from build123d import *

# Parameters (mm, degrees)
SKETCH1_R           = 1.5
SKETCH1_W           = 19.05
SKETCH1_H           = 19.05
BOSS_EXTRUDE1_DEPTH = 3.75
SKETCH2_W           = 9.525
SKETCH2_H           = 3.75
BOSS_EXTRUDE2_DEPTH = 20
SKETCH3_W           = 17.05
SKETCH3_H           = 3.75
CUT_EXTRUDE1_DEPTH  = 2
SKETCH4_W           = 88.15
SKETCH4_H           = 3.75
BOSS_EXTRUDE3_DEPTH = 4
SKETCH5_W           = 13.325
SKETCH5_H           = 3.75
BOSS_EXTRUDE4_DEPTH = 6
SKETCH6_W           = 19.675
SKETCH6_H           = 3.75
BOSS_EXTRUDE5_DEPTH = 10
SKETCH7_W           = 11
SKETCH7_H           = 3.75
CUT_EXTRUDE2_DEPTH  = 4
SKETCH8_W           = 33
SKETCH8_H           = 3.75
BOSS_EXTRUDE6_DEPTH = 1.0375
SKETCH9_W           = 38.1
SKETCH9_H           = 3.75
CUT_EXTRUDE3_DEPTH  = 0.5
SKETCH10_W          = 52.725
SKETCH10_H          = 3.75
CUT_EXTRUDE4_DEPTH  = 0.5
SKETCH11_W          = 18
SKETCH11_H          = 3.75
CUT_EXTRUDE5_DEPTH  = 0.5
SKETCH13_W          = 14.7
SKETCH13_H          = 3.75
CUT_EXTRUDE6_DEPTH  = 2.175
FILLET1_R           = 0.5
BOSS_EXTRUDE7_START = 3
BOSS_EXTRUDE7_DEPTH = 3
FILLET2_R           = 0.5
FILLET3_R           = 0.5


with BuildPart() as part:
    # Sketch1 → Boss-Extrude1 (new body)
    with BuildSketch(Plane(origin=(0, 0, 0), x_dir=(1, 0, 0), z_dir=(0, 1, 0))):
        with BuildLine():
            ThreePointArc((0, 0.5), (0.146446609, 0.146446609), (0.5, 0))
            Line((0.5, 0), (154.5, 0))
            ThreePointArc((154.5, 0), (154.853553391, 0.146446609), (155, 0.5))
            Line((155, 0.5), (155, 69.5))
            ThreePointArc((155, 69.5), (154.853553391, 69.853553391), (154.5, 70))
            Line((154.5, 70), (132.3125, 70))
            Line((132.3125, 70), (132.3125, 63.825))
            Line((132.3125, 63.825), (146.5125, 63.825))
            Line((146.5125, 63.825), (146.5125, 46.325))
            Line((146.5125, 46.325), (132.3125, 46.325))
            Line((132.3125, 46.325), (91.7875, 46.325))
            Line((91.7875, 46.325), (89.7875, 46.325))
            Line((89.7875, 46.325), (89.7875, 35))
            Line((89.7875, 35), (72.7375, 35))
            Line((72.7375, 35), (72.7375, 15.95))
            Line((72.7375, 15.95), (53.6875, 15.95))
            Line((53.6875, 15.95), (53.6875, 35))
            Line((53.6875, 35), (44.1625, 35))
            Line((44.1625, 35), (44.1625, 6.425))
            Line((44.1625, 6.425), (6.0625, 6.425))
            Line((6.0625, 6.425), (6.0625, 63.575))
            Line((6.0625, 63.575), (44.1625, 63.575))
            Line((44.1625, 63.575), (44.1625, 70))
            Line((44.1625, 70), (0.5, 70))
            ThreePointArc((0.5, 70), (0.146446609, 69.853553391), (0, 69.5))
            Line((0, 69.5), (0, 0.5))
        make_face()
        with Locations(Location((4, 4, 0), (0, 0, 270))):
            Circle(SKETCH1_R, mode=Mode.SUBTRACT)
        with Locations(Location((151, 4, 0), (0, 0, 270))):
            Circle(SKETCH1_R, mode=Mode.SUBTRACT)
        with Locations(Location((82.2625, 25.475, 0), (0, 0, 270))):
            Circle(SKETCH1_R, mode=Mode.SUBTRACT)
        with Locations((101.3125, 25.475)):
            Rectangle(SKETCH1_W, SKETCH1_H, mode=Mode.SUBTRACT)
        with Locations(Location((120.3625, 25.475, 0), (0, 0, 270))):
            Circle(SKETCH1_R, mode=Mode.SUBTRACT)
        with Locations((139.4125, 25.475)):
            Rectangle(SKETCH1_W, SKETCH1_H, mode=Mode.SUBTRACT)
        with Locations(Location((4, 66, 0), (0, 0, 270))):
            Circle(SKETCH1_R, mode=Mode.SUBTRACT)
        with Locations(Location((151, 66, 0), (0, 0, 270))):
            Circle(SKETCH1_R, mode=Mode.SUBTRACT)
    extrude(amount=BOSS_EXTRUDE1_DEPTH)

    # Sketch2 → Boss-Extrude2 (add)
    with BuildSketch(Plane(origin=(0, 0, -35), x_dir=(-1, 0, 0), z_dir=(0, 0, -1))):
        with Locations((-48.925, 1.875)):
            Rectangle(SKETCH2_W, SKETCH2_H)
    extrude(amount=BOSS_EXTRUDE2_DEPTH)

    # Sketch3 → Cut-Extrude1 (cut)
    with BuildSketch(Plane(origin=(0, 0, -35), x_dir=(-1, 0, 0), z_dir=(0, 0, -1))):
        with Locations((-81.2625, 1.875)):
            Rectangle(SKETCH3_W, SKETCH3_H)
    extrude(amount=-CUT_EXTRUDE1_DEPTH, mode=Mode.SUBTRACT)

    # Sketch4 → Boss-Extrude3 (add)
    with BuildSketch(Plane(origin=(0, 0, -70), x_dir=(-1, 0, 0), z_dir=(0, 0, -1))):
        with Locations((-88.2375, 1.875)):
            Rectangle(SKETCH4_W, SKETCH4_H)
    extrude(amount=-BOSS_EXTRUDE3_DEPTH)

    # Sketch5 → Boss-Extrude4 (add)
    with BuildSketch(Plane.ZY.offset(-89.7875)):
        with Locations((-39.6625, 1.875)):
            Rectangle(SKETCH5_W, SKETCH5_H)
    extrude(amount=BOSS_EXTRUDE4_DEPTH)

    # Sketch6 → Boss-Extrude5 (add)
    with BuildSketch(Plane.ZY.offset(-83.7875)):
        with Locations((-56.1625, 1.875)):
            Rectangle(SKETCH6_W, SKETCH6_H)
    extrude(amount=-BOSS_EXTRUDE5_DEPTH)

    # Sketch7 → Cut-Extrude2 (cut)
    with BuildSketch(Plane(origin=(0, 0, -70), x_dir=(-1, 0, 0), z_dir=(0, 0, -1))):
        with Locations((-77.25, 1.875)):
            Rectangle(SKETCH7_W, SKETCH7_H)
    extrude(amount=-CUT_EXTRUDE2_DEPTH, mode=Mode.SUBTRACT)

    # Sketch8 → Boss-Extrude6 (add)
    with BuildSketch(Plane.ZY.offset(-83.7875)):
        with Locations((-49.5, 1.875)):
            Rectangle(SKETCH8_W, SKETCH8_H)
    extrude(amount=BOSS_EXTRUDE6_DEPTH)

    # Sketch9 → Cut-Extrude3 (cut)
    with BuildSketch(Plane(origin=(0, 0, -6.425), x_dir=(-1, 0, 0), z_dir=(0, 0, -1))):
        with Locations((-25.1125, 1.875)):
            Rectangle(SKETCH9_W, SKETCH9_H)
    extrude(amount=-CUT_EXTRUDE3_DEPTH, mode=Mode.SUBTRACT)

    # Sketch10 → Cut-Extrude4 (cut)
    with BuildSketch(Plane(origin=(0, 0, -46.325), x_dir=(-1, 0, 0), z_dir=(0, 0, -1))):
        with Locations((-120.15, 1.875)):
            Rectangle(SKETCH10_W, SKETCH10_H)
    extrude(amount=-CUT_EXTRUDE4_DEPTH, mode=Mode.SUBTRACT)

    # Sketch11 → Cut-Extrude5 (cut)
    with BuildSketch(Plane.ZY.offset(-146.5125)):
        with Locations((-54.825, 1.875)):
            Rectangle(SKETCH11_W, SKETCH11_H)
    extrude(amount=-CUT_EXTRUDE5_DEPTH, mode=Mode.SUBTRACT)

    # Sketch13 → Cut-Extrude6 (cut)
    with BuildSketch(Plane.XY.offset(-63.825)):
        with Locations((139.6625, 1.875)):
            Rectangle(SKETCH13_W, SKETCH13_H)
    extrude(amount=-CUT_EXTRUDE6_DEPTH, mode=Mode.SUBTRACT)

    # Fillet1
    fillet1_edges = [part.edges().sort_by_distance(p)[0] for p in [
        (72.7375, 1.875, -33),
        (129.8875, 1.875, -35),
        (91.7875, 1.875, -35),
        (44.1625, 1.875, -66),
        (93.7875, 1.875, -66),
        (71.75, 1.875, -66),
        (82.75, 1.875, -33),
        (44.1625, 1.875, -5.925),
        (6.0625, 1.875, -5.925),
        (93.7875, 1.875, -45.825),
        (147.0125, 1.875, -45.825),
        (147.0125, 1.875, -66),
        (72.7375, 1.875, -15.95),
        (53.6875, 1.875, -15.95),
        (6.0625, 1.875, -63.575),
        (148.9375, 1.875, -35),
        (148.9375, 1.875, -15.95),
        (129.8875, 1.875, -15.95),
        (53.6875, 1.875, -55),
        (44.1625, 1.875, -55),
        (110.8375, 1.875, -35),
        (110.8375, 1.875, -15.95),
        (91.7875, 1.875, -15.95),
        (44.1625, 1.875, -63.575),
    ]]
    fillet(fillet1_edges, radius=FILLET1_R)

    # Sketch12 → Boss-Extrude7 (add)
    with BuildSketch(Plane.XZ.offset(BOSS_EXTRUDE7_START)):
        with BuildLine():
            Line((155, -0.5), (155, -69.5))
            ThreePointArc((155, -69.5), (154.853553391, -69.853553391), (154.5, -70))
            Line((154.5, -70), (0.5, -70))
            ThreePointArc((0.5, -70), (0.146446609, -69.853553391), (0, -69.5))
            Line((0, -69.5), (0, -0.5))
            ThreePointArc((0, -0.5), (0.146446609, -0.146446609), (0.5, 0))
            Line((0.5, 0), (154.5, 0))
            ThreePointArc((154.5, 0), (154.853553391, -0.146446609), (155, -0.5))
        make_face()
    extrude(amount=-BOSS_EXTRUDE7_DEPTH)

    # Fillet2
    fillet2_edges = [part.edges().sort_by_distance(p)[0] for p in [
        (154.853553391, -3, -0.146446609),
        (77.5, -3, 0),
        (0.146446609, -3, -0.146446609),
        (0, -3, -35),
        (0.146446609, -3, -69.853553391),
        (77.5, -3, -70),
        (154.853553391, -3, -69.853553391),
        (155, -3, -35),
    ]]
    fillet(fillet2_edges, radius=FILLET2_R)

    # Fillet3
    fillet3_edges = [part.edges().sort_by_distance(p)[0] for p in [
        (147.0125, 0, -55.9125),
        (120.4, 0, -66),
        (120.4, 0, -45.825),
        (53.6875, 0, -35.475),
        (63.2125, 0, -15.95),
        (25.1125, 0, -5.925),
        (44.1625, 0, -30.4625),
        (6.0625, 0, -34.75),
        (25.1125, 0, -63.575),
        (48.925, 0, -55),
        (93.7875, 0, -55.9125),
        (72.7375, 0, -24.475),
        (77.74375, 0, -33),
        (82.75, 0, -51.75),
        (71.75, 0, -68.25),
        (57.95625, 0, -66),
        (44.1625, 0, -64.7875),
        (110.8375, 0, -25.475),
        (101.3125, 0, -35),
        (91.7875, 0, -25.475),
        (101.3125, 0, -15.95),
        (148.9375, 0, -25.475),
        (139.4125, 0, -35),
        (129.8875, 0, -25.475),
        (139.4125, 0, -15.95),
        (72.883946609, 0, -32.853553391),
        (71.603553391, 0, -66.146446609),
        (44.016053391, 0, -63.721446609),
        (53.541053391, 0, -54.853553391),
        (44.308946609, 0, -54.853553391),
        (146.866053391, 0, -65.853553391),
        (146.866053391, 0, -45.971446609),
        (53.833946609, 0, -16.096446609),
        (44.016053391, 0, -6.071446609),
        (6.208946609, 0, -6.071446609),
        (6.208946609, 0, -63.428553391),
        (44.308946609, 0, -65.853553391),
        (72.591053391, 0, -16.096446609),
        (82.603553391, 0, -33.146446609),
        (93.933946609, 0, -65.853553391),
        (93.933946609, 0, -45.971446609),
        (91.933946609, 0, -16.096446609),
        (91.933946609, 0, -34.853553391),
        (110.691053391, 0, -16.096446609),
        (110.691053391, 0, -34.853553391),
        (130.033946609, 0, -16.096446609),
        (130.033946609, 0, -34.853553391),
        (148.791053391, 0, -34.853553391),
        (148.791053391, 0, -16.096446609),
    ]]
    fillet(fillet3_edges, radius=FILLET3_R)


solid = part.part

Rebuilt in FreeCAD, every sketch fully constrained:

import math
import FreeCAD as App
import Part
import Sketcher
from FreeCAD import Vector
Q = App.Units.Quantity


def edges_at(feature, points):
    """Names of the edges that pass closest to the given points."""
    edges = feature.Shape.Edges
    near = lambda p: min(range(len(edges)), key=lambda i: edges[i].distToShape(Part.Vertex(*p))[0])
    return sorted({f"Edge{near(p) + 1}" for p in points})

doc = App.newDocument("Part")
body = doc.addObject("PartDesign::Body", "Body")

# Sketch on XZ plane
sketch1 = doc.addObject("Sketcher::SketchObject", "Sketch")
body.addObject(sketch1)
sketch1.AttachmentSupport = (doc.XZ_Plane, [""])
sketch1.MapMode = "FlatFace"
sketch1.addGeometry([
    Part.ArcOfCircle(Part.Circle(Vector(0.5, -0.5, 0), Vector(0, 0, 1), 0.5), math.radians(90), math.radians(180)),  # 0
    Part.LineSegment(Vector(0.5, 0, 0), Vector(154.5, 0, 0)),  # 1
    Part.ArcOfCircle(Part.Circle(Vector(154.5, -0.5, 0), Vector(0, 0, 1), 0.5), math.radians(0), math.radians(90)),  # 2
    Part.LineSegment(Vector(155, -0.5, 0), Vector(155, -69.5, 0)),  # 3
    Part.ArcOfCircle(Part.Circle(Vector(154.5, -69.5, 0), Vector(0, 0, 1), 0.5), math.radians(-90), math.radians(0)),  # 4
    Part.LineSegment(Vector(154.5, -70, 0), Vector(132.31, -70, 0)),  # 5
    Part.LineSegment(Vector(132.31, -70, 0), Vector(132.31, -63.83, 0)),  # 6
    Part.LineSegment(Vector(132.31, -63.83, 0), Vector(146.51, -63.83, 0)),  # 7
    Part.LineSegment(Vector(146.51, -63.83, 0), Vector(146.51, -46.33, 0)),  # 8
    Part.LineSegment(Vector(146.51, -46.33, 0), Vector(89.79, -46.33, 0)),  # 9
    Part.LineSegment(Vector(89.79, -46.33, 0), Vector(89.79, -35, 0)),  # 10
    Part.LineSegment(Vector(89.79, -35, 0), Vector(72.74, -35, 0)),  # 11
    Part.LineSegment(Vector(72.74, -35, 0), Vector(72.74, -15.95, 0)),  # 12
    Part.LineSegment(Vector(72.74, -15.95, 0), Vector(53.69, -15.95, 0)),  # 13
    Part.LineSegment(Vector(53.69, -15.95, 0), Vector(53.69, -35, 0)),  # 14
    Part.LineSegment(Vector(53.69, -35, 0), Vector(44.16, -35, 0)),  # 15
    Part.LineSegment(Vector(44.16, -35, 0), Vector(44.16, -6.42, 0)),  # 16
    Part.LineSegment(Vector(44.16, -6.42, 0), Vector(6.06, -6.42, 0)),  # 17
    Part.LineSegment(Vector(6.06, -6.42, 0), Vector(6.06, -63.58, 0)),  # 18
    Part.LineSegment(Vector(6.06, -63.58, 0), Vector(44.16, -63.58, 0)),  # 19
    Part.LineSegment(Vector(44.16, -63.58, 0), Vector(44.16, -70, 0)),  # 20
    Part.LineSegment(Vector(44.16, -70, 0), Vector(0.5, -70, 0)),  # 21
    Part.ArcOfCircle(Part.Circle(Vector(0.5, -69.5, 0), Vector(0, 0, 1), 0.5), math.radians(180), math.radians(270)),  # 22
    Part.LineSegment(Vector(0, -69.5, 0), Vector(0, -0.5, 0)),  # 23
    Part.Circle(Vector(4, -4, 0), Vector(0, 0, 1), 1.5),  # 24
    Part.Circle(Vector(151, -4, 0), Vector(0, 0, 1), 1.5),  # 25
    Part.Circle(Vector(82.26, -25.48, 0), Vector(0, 0, 1), 1.5),  # 26
    Part.LineSegment(Vector(110.84, -15.95, 0), Vector(91.79, -15.95, 0)),  # 27
    Part.LineSegment(Vector(91.79, -15.95, 0), Vector(91.79, -35, 0)),  # 28
    Part.LineSegment(Vector(91.79, -35, 0), Vector(110.84, -35, 0)),  # 29
    Part.LineSegment(Vector(110.84, -35, 0), Vector(110.84, -15.95, 0)),  # 30
    Part.Circle(Vector(120.36, -25.48, 0), Vector(0, 0, 1), 1.5),  # 31
    Part.LineSegment(Vector(148.94, -15.95, 0), Vector(129.89, -15.95, 0)),  # 32
    Part.LineSegment(Vector(129.89, -15.95, 0), Vector(129.89, -35, 0)),  # 33
    Part.LineSegment(Vector(129.89, -35, 0), Vector(148.94, -35, 0)),  # 34
    Part.LineSegment(Vector(148.94, -35, 0), Vector(148.94, -15.95, 0)),  # 35
    Part.Circle(Vector(4, -66, 0), Vector(0, 0, 1), 1.5),  # 36
    Part.Circle(Vector(151, -66, 0), Vector(0, 0, 1), 1.5),  # 37
], False)
sketch1.addConstraint([
    Sketcher.Constraint("Tangent", 0, 1, 1, 1),
    Sketcher.Constraint("Tangent", 1, 2, 2, 2),
    Sketcher.Constraint("Tangent", 2, 1, 3, 1),
    Sketcher.Constraint("Tangent", 3, 2, 4, 2),
    Sketcher.Constraint("Tangent", 4, 1, 5, 1),
    Sketcher.Constraint("Coincident", 5, 2, 6, 1),
    Sketcher.Constraint("Coincident", 6, 2, 7, 1),
    Sketcher.Constraint("Coincident", 7, 2, 8, 1),
    Sketcher.Constraint("Coincident", 8, 2, 9, 1),
    Sketcher.Constraint("Coincident", 9, 2, 10, 1),
    Sketcher.Constraint("Coincident", 10, 2, 11, 1),
    Sketcher.Constraint("Coincident", 11, 2, 12, 1),
    Sketcher.Constraint("Coincident", 12, 2, 13, 1),
    Sketcher.Constraint("Coincident", 13, 2, 14, 1),
    Sketcher.Constraint("Coincident", 14, 2, 15, 1),
    Sketcher.Constraint("Coincident", 15, 2, 16, 1),
    Sketcher.Constraint("Coincident", 16, 2, 17, 1),
    Sketcher.Constraint("Coincident", 17, 2, 18, 1),
    Sketcher.Constraint("Coincident", 18, 2, 19, 1),
    Sketcher.Constraint("Coincident", 19, 2, 20, 1),
    Sketcher.Constraint("Coincident", 20, 2, 21, 1),
    Sketcher.Constraint("Tangent", 21, 2, 22, 2),
    Sketcher.Constraint("Tangent", 22, 1, 23, 1),
    Sketcher.Constraint("Tangent", 23, 2, 0, 2),
    Sketcher.Constraint("Coincident", 27, 2, 28, 1),
    Sketcher.Constraint("Coincident", 28, 2, 29, 1),
    Sketcher.Constraint("Coincident", 29, 2, 30, 1),
    Sketcher.Constraint("Coincident", 30, 2, 27, 1),
    Sketcher.Constraint("Coincident", 32, 2, 33, 1),
    Sketcher.Constraint("Coincident", 33, 2, 34, 1),
    Sketcher.Constraint("Coincident", 34, 2, 35, 1),
    Sketcher.Constraint("Coincident", 35, 2, 32, 1),
    Sketcher.Constraint("Horizontal", 1),
    Sketcher.Constraint("Vertical", 3),
    Sketcher.Constraint("Horizontal", 5),
    Sketcher.Constraint("Vertical", 6),
    Sketcher.Constraint("Horizontal", 7),
    Sketcher.Constraint("Vertical", 8),
    Sketcher.Constraint("Horizontal", 9),
    Sketcher.Constraint("Vertical", 10),
    Sketcher.Constraint("Horizontal", 11),
    Sketcher.Constraint("Vertical", 12),
    Sketcher.Constraint("Horizontal", 13),
    Sketcher.Constraint("Vertical", 14),
    Sketcher.Constraint("Horizontal", 15),
    Sketcher.Constraint("Vertical", 16),
    Sketcher.Constraint("Horizontal", 17),
    Sketcher.Constraint("Vertical", 18),
    Sketcher.Constraint("Horizontal", 19),
    Sketcher.Constraint("Vertical", 20),
    Sketcher.Constraint("Horizontal", 21),
    Sketcher.Constraint("Vertical", 23),
    Sketcher.Constraint("Horizontal", 27),
    Sketcher.Constraint("Vertical", 28),
    Sketcher.Constraint("Horizontal", 29),
    Sketcher.Constraint("Vertical", 30),
    Sketcher.Constraint("Horizontal", 32),
    Sketcher.Constraint("Vertical", 33),
    Sketcher.Constraint("Horizontal", 34),
    Sketcher.Constraint("Vertical", 35),
    Sketcher.Constraint("Equal", 0, 2),
    Sketcher.Constraint("Equal", 2, 4),
    Sketcher.Constraint("Equal", 4, 22),
    Sketcher.Constraint("Equal", 24, 25),
    Sketcher.Constraint("Equal", 25, 26),
    Sketcher.Constraint("Equal", 26, 31),
    Sketcher.Constraint("Equal", 31, 36),
    Sketcher.Constraint("Equal", 36, 37),
    Sketcher.Constraint("PointOnObject", 0, 1, -1),
    Sketcher.Constraint("PointOnObject", 22, 1, -2),
    Sketcher.Constraint("Horizontal", 4, 3, 22, 3),
    Sketcher.Constraint("Horizontal", 24, 3, 25, 3),
    Sketcher.Constraint("Horizontal", 26, 3, 31, 3),
    Sketcher.Constraint("Horizontal", 36, 3, 37, 3),
    Sketcher.Constraint("Horizontal", 11, 2, 14, 2),
    Sketcher.Constraint("Horizontal", 13, 2, 27, 2),
    Sketcher.Constraint("Horizontal", 15, 2, 28, 2),
    Sketcher.Constraint("Horizontal", 30, 2, 32, 2),
    Sketcher.Constraint("Horizontal", 29, 2, 33, 2),
    Sketcher.Constraint("Vertical", 24, 3, 36, 3),
    Sketcher.Constraint("Vertical", 25, 3, 37, 3),
    Sketcher.Constraint("Vertical", 16, 2, 19, 2),
    Sketcher.Constraint("Equal", 13, 27),
    Sketcher.Constraint("Equal", 29, 32),
    Sketcher.Constraint("Equal", 34, 12),
    Sketcher.Constraint("Diameter", 24, Q("3 mm")),
    Sketcher.Constraint("Radius", 0, Q("0.5 mm")),
    Sketcher.Constraint("DistanceX", 1, 1, 1, 2, Q("154 mm")),
    Sketcher.Constraint("DistanceY", 3, 2, 3, 1, Q("69 mm")),
    Sketcher.Constraint("DistanceX", 7, 1, 7, 2, Q("14.2 mm")),
    Sketcher.Constraint("DistanceX", 17, 2, 17, 1, Q("38.1 mm")),
    Sketcher.Constraint("DistanceY", 8, 1, 8, 2, Q("17.5 mm")),
    Sketcher.Constraint("DistanceX", -1, 1, 24, 3, Q("4 mm")),
    Sketcher.Constraint("DistanceY", 24, 3, -1, 1, Q("4 mm")),
    Sketcher.Constraint("DistanceX", -1, 1, 25, 3, Q("151 mm")),
    Sketcher.Constraint("DistanceY", 36, 3, -1, 1, Q("66 mm")),
    Sketcher.Constraint("DistanceY", 10, 2, -1, 1, Q("35 mm")),
    Sketcher.Constraint("DistanceX", 10, 2, 27, 2, Q("2 mm")),
    Sketcher.Constraint("DistanceX", 11, 2, 11, 1, Q("17.05 mm")),
    Sketcher.Constraint("DistanceX", 13, 2, 13, 1, Q("19.05 mm")),
    Sketcher.Constraint("DistanceY", 18, 2, 18, 1, Q("57.15 mm")),
    Sketcher.Constraint("DistanceX", 26, 3, 31, 3, Q("38.1 mm")),
    Sketcher.Constraint("DistanceX", 15, 2, 26, 3, Q("38.1 mm")),
    Sketcher.Constraint("DistanceX", 9, 2, 9, 1, Q("56.725 mm")),
    Sketcher.Constraint("DistanceX", 15, 2, 15, 1, Q("9.525 mm")),
    Sketcher.Constraint("DistanceY", 6, 1, 6, 2, Q("6.175 mm")),
    Sketcher.Constraint("DistanceY", 16, 1, 16, 2, Q("28.575 mm")),
    Sketcher.Constraint("DistanceY", 9, 2, 26, 3, Q("20.85 mm")),
    Sketcher.Constraint("DistanceX", 30, 2, 32, 2, Q("19.05 mm")),
    Sketcher.Constraint("DistanceX", 5, 2, 5, 1, Q("22.1875 mm")),
])
pad1 = doc.addObject("PartDesign::Pad", "Pad")
body.addObject(pad1)
pad1.Profile = sketch1
pad1.Length = 3.75
pad1.Reversed = True

# Sketch on XY plane
sketch2 = doc.addObject("Sketcher::SketchObject", "Sketch001")
body.addObject(sketch2)
sketch2.AttachmentSupport = (doc.XY_Plane, [""])
sketch2.MapMode = "FlatFace"
sketch2.AttachmentOffset = App.Placement(Vector(0, 0, -35), App.Rotation())
sketch2.addGeometry([
    Part.LineSegment(Vector(53.7, 3.8, 0), Vector(53.7, 0, 0)),
    Part.LineSegment(Vector(53.7, 0, 0), Vector(44.2, 0, 0)),
    Part.LineSegment(Vector(44.2, 0, 0), Vector(44.2, 3.8, 0)),
    Part.LineSegment(Vector(44.2, 3.8, 0), Vector(53.7, 3.8, 0)),
], False)
sketch2.addConstraint([
    Sketcher.Constraint("Coincident", 0, 2, 1, 1),
    Sketcher.Constraint("Coincident", 1, 2, 2, 1),
    Sketcher.Constraint("Coincident", 2, 2, 3, 1),
    Sketcher.Constraint("Coincident", 3, 2, 0, 1),
    Sketcher.Constraint("Vertical", 0),
    Sketcher.Constraint("Horizontal", 1),
    Sketcher.Constraint("Vertical", 2),
    Sketcher.Constraint("Horizontal", 3),
    Sketcher.Constraint("PointOnObject", 0, 2, -1),
    Sketcher.Constraint("DistanceY", 0, 2, 0, 1, Q("3.75 mm")),
    Sketcher.Constraint("DistanceX", 1, 2, 1, 1, Q("9.525 mm")),
    Sketcher.Constraint("DistanceX", -1, 1, 0, 2, Q("53.6875 mm")),
])
pad2 = doc.addObject("PartDesign::Pad", "Pad001")
body.addObject(pad2)
pad2.Profile = sketch2
pad2.Length = 20
pad2.Reversed = True

# Sketch on XY plane
sketch3 = doc.addObject("Sketcher::SketchObject", "Sketch002")
body.addObject(sketch3)
sketch3.AttachmentSupport = (doc.XY_Plane, [""])
sketch3.MapMode = "FlatFace"
sketch3.AttachmentOffset = App.Placement(Vector(0, 0, -35), App.Rotation())
sketch3.addGeometry([
    Part.LineSegment(Vector(89.8, 3.8, 0), Vector(89.8, 0, 0)),
    Part.LineSegment(Vector(89.8, 0, 0), Vector(72.7, 0, 0)),
    Part.LineSegment(Vector(72.7, 0, 0), Vector(72.7, 3.8, 0)),
    Part.LineSegment(Vector(72.7, 3.8, 0), Vector(89.8, 3.8, 0)),
], False)
sketch3.addConstraint([
    Sketcher.Constraint("Coincident", 0, 2, 1, 1),
    Sketcher.Constraint("Coincident", 1, 2, 2, 1),
    Sketcher.Constraint("Coincident", 2, 2, 3, 1),
    Sketcher.Constraint("Coincident", 3, 2, 0, 1),
    Sketcher.Constraint("Vertical", 0),
    Sketcher.Constraint("Horizontal", 1),
    Sketcher.Constraint("Vertical", 2),
    Sketcher.Constraint("Horizontal", 3),
    Sketcher.Constraint("PointOnObject", 0, 2, -1),
    Sketcher.Constraint("DistanceX", 1, 2, 1, 1, Q("17.05 mm")),
    Sketcher.Constraint("DistanceY", 0, 2, 0, 1, Q("3.75 mm")),
    Sketcher.Constraint("DistanceX", -1, 1, 0, 2, Q("89.7875 mm")),
])
pocket1 = doc.addObject("PartDesign::Pocket", "Pocket")
body.addObject(pocket1)
pocket1.Profile = sketch3
pocket1.Length = 2
pocket1.Reversed = True

# Sketch on XY plane
sketch4 = doc.addObject("Sketcher::SketchObject", "Sketch003")
body.addObject(sketch4)
sketch4.AttachmentSupport = (doc.XY_Plane, [""])
sketch4.MapMode = "FlatFace"
sketch4.AttachmentOffset = App.Placement(Vector(0, 0, -70), App.Rotation())
sketch4.addGeometry([
    Part.LineSegment(Vector(132.3, 3.8, 0), Vector(132.3, 0, 0)),
    Part.LineSegment(Vector(132.3, 0, 0), Vector(44.2, 0, 0)),
    Part.LineSegment(Vector(44.2, 0, 0), Vector(44.2, 3.8, 0)),
    Part.LineSegment(Vector(44.2, 3.8, 0), Vector(132.3, 3.8, 0)),
], False)
sketch4.addConstraint([
    Sketcher.Constraint("Coincident", 0, 2, 1, 1),
    Sketcher.Constraint("Coincident", 1, 2, 2, 1),
    Sketcher.Constraint("Coincident", 2, 2, 3, 1),
    Sketcher.Constraint("Coincident", 3, 2, 0, 1),
    Sketcher.Constraint("Vertical", 0),
    Sketcher.Constraint("Horizontal", 1),
    Sketcher.Constraint("Vertical", 2),
    Sketcher.Constraint("Horizontal", 3),
    Sketcher.Constraint("PointOnObject", 0, 2, -1),
    Sketcher.Constraint("DistanceX", 1, 2, 1, 1, Q("88.15 mm")),
    Sketcher.Constraint("DistanceY", 0, 2, 0, 1, Q("3.75 mm")),
    Sketcher.Constraint("DistanceX", -1, 1, 0, 2, Q("132.3125 mm")),
])
pad3 = doc.addObject("PartDesign::Pad", "Pad002")
body.addObject(pad3)
pad3.Profile = sketch4
pad3.Length = 4

# Sketch on YZ plane
sketch5 = doc.addObject("Sketcher::SketchObject", "Sketch004")
body.addObject(sketch5)
sketch5.AttachmentSupport = (doc.YZ_Plane, [""])
sketch5.MapMode = "FlatFace"
sketch5.AttachmentOffset = App.Placement(Vector(0, 0, 89.7875), App.Rotation())
sketch5.addGeometry([
    Part.LineSegment(Vector(3.8, -46.3, 0), Vector(0, -46.3, 0)),
    Part.LineSegment(Vector(0, -46.3, 0), Vector(0, -33, 0)),
    Part.LineSegment(Vector(0, -33, 0), Vector(3.8, -33, 0)),
    Part.LineSegment(Vector(3.8, -33, 0), Vector(3.8, -46.3, 0)),
], False)
sketch5.addConstraint([
    Sketcher.Constraint("Coincident", 0, 2, 1, 1),
    Sketcher.Constraint("Coincident", 1, 2, 2, 1),
    Sketcher.Constraint("Coincident", 2, 2, 3, 1),
    Sketcher.Constraint("Coincident", 3, 2, 0, 1),
    Sketcher.Constraint("Horizontal", 0),
    Sketcher.Constraint("Vertical", 1),
    Sketcher.Constraint("Horizontal", 2),
    Sketcher.Constraint("Vertical", 3),
    Sketcher.Constraint("PointOnObject", 0, 2, -2),
    Sketcher.Constraint("DistanceY", 1, 2, -1, 1, Q("33 mm")),
    Sketcher.Constraint("DistanceX", 0, 2, 0, 1, Q("3.75 mm")),
    Sketcher.Constraint("DistanceY", 1, 1, 1, 2, Q("13.325 mm")),
])
pad4 = doc.addObject("PartDesign::Pad", "Pad003")
body.addObject(pad4)
pad4.Profile = sketch5
pad4.Length = 6
pad4.Reversed = True

# Sketch on YZ plane
sketch6 = doc.addObject("Sketcher::SketchObject", "Sketch005")
body.addObject(sketch6)
sketch6.AttachmentSupport = (doc.YZ_Plane, [""])
sketch6.MapMode = "FlatFace"
sketch6.AttachmentOffset = App.Placement(Vector(0, 0, 83.7875), App.Rotation())
sketch6.addGeometry([
    Part.LineSegment(Vector(3.8, -66, 0), Vector(0, -66, 0)),
    Part.LineSegment(Vector(0, -66, 0), Vector(0, -46.3, 0)),
    Part.LineSegment(Vector(0, -46.3, 0), Vector(3.8, -46.3, 0)),
    Part.LineSegment(Vector(3.8, -46.3, 0), Vector(3.8, -66, 0)),
], False)
sketch6.addConstraint([
    Sketcher.Constraint("Coincident", 0, 2, 1, 1),
    Sketcher.Constraint("Coincident", 1, 2, 2, 1),
    Sketcher.Constraint("Coincident", 2, 2, 3, 1),
    Sketcher.Constraint("Coincident", 3, 2, 0, 1),
    Sketcher.Constraint("Horizontal", 0),
    Sketcher.Constraint("Vertical", 1),
    Sketcher.Constraint("Horizontal", 2),
    Sketcher.Constraint("Vertical", 3),
    Sketcher.Constraint("PointOnObject", 0, 2, -2),
    Sketcher.Constraint("DistanceY", 0, 2, -1, 1, Q("66 mm")),
    Sketcher.Constraint("DistanceX", 0, 2, 0, 1, Q("3.75 mm")),
    Sketcher.Constraint("DistanceY", 1, 1, 1, 2, Q("19.675 mm")),
])
pad5 = doc.addObject("PartDesign::Pad", "Pad004")
body.addObject(pad5)
pad5.Profile = sketch6
pad5.Length = 10

# Sketch on XY plane
sketch7 = doc.addObject("Sketcher::SketchObject", "Sketch006")
body.addObject(sketch7)
sketch7.AttachmentSupport = (doc.XY_Plane, [""])
sketch7.MapMode = "FlatFace"
sketch7.AttachmentOffset = App.Placement(Vector(0, 0, -70), App.Rotation())
sketch7.addGeometry([
    Part.LineSegment(Vector(82.8, 3.8, 0), Vector(82.8, 0, 0)),
    Part.LineSegment(Vector(82.8, 0, 0), Vector(71.8, 0, 0)),
    Part.LineSegment(Vector(71.8, 0, 0), Vector(71.8, 3.8, 0)),
    Part.LineSegment(Vector(71.8, 3.8, 0), Vector(82.8, 3.8, 0)),
], False)
sketch7.addConstraint([
    Sketcher.Constraint("Coincident", 0, 2, 1, 1),
    Sketcher.Constraint("Coincident", 1, 2, 2, 1),
    Sketcher.Constraint("Coincident", 2, 2, 3, 1),
    Sketcher.Constraint("Coincident", 3, 2, 0, 1),
    Sketcher.Constraint("Vertical", 0),
    Sketcher.Constraint("Horizontal", 1),
    Sketcher.Constraint("Vertical", 2),
    Sketcher.Constraint("Horizontal", 3),
    Sketcher.Constraint("PointOnObject", 0, 2, -1),
    Sketcher.Constraint("DistanceX", 1, 2, 1, 1, Q("11 mm")),
    Sketcher.Constraint("DistanceY", 0, 2, 0, 1, Q("3.75 mm")),
    Sketcher.Constraint("DistanceX", -1, 1, 0, 2, Q("82.75 mm")),
])
pocket2 = doc.addObject("PartDesign::Pocket", "Pocket001")
body.addObject(pocket2)
pocket2.Profile = sketch7
pocket2.Length = 4
pocket2.Reversed = True

# Sketch on YZ plane
sketch8 = doc.addObject("Sketcher::SketchObject", "Sketch007")
body.addObject(sketch8)
sketch8.AttachmentSupport = (doc.YZ_Plane, [""])
sketch8.MapMode = "FlatFace"
sketch8.AttachmentOffset = App.Placement(Vector(0, 0, 83.7875), App.Rotation())
sketch8.addGeometry([
    Part.LineSegment(Vector(3.8, -66, 0), Vector(0, -66, 0)),
    Part.LineSegment(Vector(0, -66, 0), Vector(0, -33, 0)),
    Part.LineSegment(Vector(0, -33, 0), Vector(3.8, -33, 0)),
    Part.LineSegment(Vector(3.8, -33, 0), Vector(3.8, -66, 0)),
], False)
sketch8.addConstraint([
    Sketcher.Constraint("Coincident", 0, 2, 1, 1),
    Sketcher.Constraint("Coincident", 1, 2, 2, 1),
    Sketcher.Constraint("Coincident", 2, 2, 3, 1),
    Sketcher.Constraint("Coincident", 3, 2, 0, 1),
    Sketcher.Constraint("Horizontal", 0),
    Sketcher.Constraint("Vertical", 1),
    Sketcher.Constraint("Horizontal", 2),
    Sketcher.Constraint("Vertical", 3),
    Sketcher.Constraint("PointOnObject", 0, 2, -2),
    Sketcher.Constraint("DistanceY", 1, 1, 1, 2, Q("33 mm")),
    Sketcher.Constraint("DistanceY", 0, 2, -1, 1, Q("66 mm")),
    Sketcher.Constraint("DistanceX", 0, 2, 0, 1, Q("3.75 mm")),
])
pad6 = doc.addObject("PartDesign::Pad", "Pad005")
body.addObject(pad6)
pad6.Profile = sketch8
pad6.Length = 1.0375
pad6.Reversed = True

# Sketch on XY plane
sketch9 = doc.addObject("Sketcher::SketchObject", "Sketch008")
body.addObject(sketch9)
sketch9.AttachmentSupport = (doc.XY_Plane, [""])
sketch9.MapMode = "FlatFace"
sketch9.AttachmentOffset = App.Placement(Vector(0, 0, -6.425), App.Rotation())
sketch9.addGeometry([
    Part.LineSegment(Vector(44.2, 3.8, 0), Vector(44.2, 0, 0)),
    Part.LineSegment(Vector(44.2, 0, 0), Vector(6.1, 0, 0)),
    Part.LineSegment(Vector(6.1, 0, 0), Vector(6.1, 3.8, 0)),
    Part.LineSegment(Vector(6.1, 3.8, 0), Vector(44.2, 3.8, 0)),
], False)
sketch9.addConstraint([
    Sketcher.Constraint("Coincident", 0, 2, 1, 1),
    Sketcher.Constraint("Coincident", 1, 2, 2, 1),
    Sketcher.Constraint("Coincident", 2, 2, 3, 1),
    Sketcher.Constraint("Coincident", 3, 2, 0, 1),
    Sketcher.Constraint("Vertical", 0),
    Sketcher.Constraint("Horizontal", 1),
    Sketcher.Constraint("Vertical", 2),
    Sketcher.Constraint("Horizontal", 3),
    Sketcher.Constraint("PointOnObject", 0, 2, -1),
    Sketcher.Constraint("DistanceX", 1, 2, 1, 1, Q("38.1 mm")),
    Sketcher.Constraint("DistanceY", 0, 2, 0, 1, Q("3.75 mm")),
    Sketcher.Constraint("DistanceX", -1, 1, 0, 2, Q("44.1625 mm")),
])
pocket3 = doc.addObject("PartDesign::Pocket", "Pocket002")
body.addObject(pocket3)
pocket3.Profile = sketch9
pocket3.Length = 0.5
pocket3.Reversed = True

# Sketch on XY plane
sketch10 = doc.addObject("Sketcher::SketchObject", "Sketch009")
body.addObject(sketch10)
sketch10.AttachmentSupport = (doc.XY_Plane, [""])
sketch10.MapMode = "FlatFace"
sketch10.AttachmentOffset = App.Placement(Vector(0, 0, -46.325), App.Rotation())
sketch10.addGeometry([
    Part.LineSegment(Vector(146.5, 3.8, 0), Vector(146.5, 0, 0)),
    Part.LineSegment(Vector(146.5, 0, 0), Vector(93.8, 0, 0)),
    Part.LineSegment(Vector(93.8, 0, 0), Vector(93.8, 3.8, 0)),
    Part.LineSegment(Vector(93.8, 3.8, 0), Vector(146.5, 3.8, 0)),
], False)
sketch10.addConstraint([
    Sketcher.Constraint("Coincident", 0, 2, 1, 1),
    Sketcher.Constraint("Coincident", 1, 2, 2, 1),
    Sketcher.Constraint("Coincident", 2, 2, 3, 1),
    Sketcher.Constraint("Coincident", 3, 2, 0, 1),
    Sketcher.Constraint("Vertical", 0),
    Sketcher.Constraint("Horizontal", 1),
    Sketcher.Constraint("Vertical", 2),
    Sketcher.Constraint("Horizontal", 3),
    Sketcher.Constraint("PointOnObject", 0, 2, -1),
    Sketcher.Constraint("DistanceY", 0, 2, 0, 1, Q("3.75 mm")),
    Sketcher.Constraint("DistanceX", 1, 2, 1, 1, Q("52.725 mm")),
    Sketcher.Constraint("DistanceX", -1, 1, 0, 2, Q("146.5125 mm")),
])
pocket4 = doc.addObject("PartDesign::Pocket", "Pocket003")
body.addObject(pocket4)
pocket4.Profile = sketch10
pocket4.Length = 0.5
pocket4.Reversed = True

# Sketch on YZ plane
sketch11 = doc.addObject("Sketcher::SketchObject", "Sketch010")
body.addObject(sketch11)
sketch11.AttachmentSupport = (doc.YZ_Plane, [""])
sketch11.MapMode = "FlatFace"
sketch11.AttachmentOffset = App.Placement(Vector(0, 0, 146.5125), App.Rotation())
sketch11.addGeometry([
    Part.LineSegment(Vector(3.8, -63.8, 0), Vector(0, -63.8, 0)),
    Part.LineSegment(Vector(0, -63.8, 0), Vector(0, -45.8, 0)),
    Part.LineSegment(Vector(0, -45.8, 0), Vector(3.8, -45.8, 0)),
    Part.LineSegment(Vector(3.8, -45.8, 0), Vector(3.8, -63.8, 0)),
], False)
sketch11.addConstraint([
    Sketcher.Constraint("Coincident", 0, 2, 1, 1),
    Sketcher.Constraint("Coincident", 1, 2, 2, 1),
    Sketcher.Constraint("Coincident", 2, 2, 3, 1),
    Sketcher.Constraint("Coincident", 3, 2, 0, 1),
    Sketcher.Constraint("Horizontal", 0),
    Sketcher.Constraint("Vertical", 1),
    Sketcher.Constraint("Horizontal", 2),
    Sketcher.Constraint("Vertical", 3),
    Sketcher.Constraint("PointOnObject", 0, 2, -2),
    Sketcher.Constraint("DistanceY", 1, 1, 1, 2, Q("18 mm")),
    Sketcher.Constraint("DistanceX", 0, 2, 0, 1, Q("3.75 mm")),
    Sketcher.Constraint("DistanceY", 0, 2, -1, 1, Q("63.825 mm")),
])
pocket5 = doc.addObject("PartDesign::Pocket", "Pocket004")
body.addObject(pocket5)
pocket5.Profile = sketch11
pocket5.Length = 0.5
pocket5.Reversed = True

# Sketch on XY plane
sketch12 = doc.addObject("Sketcher::SketchObject", "Sketch011")
body.addObject(sketch12)
sketch12.AttachmentSupport = (doc.XY_Plane, [""])
sketch12.MapMode = "FlatFace"
sketch12.AttachmentOffset = App.Placement(Vector(0, 0, -63.825), App.Rotation())
sketch12.addGeometry([
    Part.LineSegment(Vector(132.3, 3.8, 0), Vector(132.3, 0, 0)),
    Part.LineSegment(Vector(132.3, 0, 0), Vector(147, 0, 0)),
    Part.LineSegment(Vector(147, 0, 0), Vector(147, 3.8, 0)),
    Part.LineSegment(Vector(147, 3.8, 0), Vector(132.3, 3.8, 0)),
], False)
sketch12.addConstraint([
    Sketcher.Constraint("Coincident", 0, 2, 1, 1),
    Sketcher.Constraint("Coincident", 1, 2, 2, 1),
    Sketcher.Constraint("Coincident", 2, 2, 3, 1),
    Sketcher.Constraint("Coincident", 3, 2, 0, 1),
    Sketcher.Constraint("Vertical", 0),
    Sketcher.Constraint("Horizontal", 1),
    Sketcher.Constraint("Vertical", 2),
    Sketcher.Constraint("Horizontal", 3),
    Sketcher.Constraint("PointOnObject", 0, 2, -1),
    Sketcher.Constraint("DistanceX", 1, 1, 1, 2, Q("14.7 mm")),
    Sketcher.Constraint("DistanceY", 0, 2, 0, 1, Q("3.75 mm")),
    Sketcher.Constraint("DistanceX", -1, 1, 0, 2, Q("132.3125 mm")),
])
pocket6 = doc.addObject("PartDesign::Pocket", "Pocket005")
body.addObject(pocket6)
pocket6.Profile = sketch12
pocket6.Length = 2.175
doc.recompute()

fillet = doc.addObject("PartDesign::Fillet", "Fillet")
body.addObject(fillet)
fillet.Base = (pocket6, edges_at(pocket6, [
    (72.737, 1.875, -33),
    (129.887, 1.875, -35),
    (91.787, 1.875, -35),
    (44.163, 1.875, -66),
    (93.787, 1.875, -66),
    (71.75, 1.875, -66),
    (82.75, 1.875, -33),
    (44.163, 1.875, -5.925),
    (6.062, 1.875, -5.925),
    (93.787, 1.875, -45.825),
    (147.012, 1.875, -45.825),
    (147.012, 1.875, -66),
    (72.737, 1.875, -15.95),
    (53.688, 1.875, -15.95),
    (6.062, 1.875, -63.575),
    (148.938, 1.875, -35),
    (148.938, 1.875, -15.95),
    (129.887, 1.875, -15.95),
    (53.688, 1.875, -55),
    (44.163, 1.875, -55),
    (110.838, 1.875, -35),
    (110.838, 1.875, -15.95),
    (91.787, 1.875, -15.95),
    (44.163, 1.875, -63.575),
]))
fillet.Radius = 0.5

# Sketch on XZ plane
sketch13 = doc.addObject("Sketcher::SketchObject", "Sketch012")
body.addObject(sketch13)
sketch13.AttachmentSupport = (doc.XZ_Plane, [""])
sketch13.MapMode = "FlatFace"
sketch13.AttachmentOffset = App.Placement(Vector(0, 0, 3), App.Rotation())
sketch13.addGeometry([
    Part.LineSegment(Vector(155, -69.5, 0), Vector(155, -0.5, 0)),  # 0
    Part.ArcOfCircle(Part.Circle(Vector(154.5, -0.5, 0), Vector(0, 0, 1), 0.5), math.radians(0), math.radians(90)),  # 1
    Part.LineSegment(Vector(154.5, 0, 0), Vector(0.5, 0, 0)),  # 2
    Part.ArcOfCircle(Part.Circle(Vector(0.5, -0.5, 0), Vector(0, 0, 1), 0.5), math.radians(90), math.radians(180)),  # 3
    Part.LineSegment(Vector(0, -0.5, 0), Vector(0, -69.5, 0)),  # 4
    Part.ArcOfCircle(Part.Circle(Vector(0.5, -69.5, 0), Vector(0, 0, 1), 0.5), math.radians(180), math.radians(270)),  # 5
    Part.LineSegment(Vector(0.5, -70, 0), Vector(154.5, -70, 0)),  # 6
    Part.ArcOfCircle(Part.Circle(Vector(154.5, -69.5, 0), Vector(0, 0, 1), 0.5), math.radians(-90), math.radians(0)),  # 7
], False)
sketch13.addConstraint([
    Sketcher.Constraint("Tangent", 0, 2, 1, 1),
    Sketcher.Constraint("Tangent", 1, 2, 2, 1),
    Sketcher.Constraint("Tangent", 2, 2, 3, 1),
    Sketcher.Constraint("Tangent", 3, 2, 4, 1),
    Sketcher.Constraint("Tangent", 4, 2, 5, 1),
    Sketcher.Constraint("Tangent", 5, 2, 6, 1),
    Sketcher.Constraint("Tangent", 6, 2, 7, 1),
    Sketcher.Constraint("Tangent", 7, 2, 0, 1),
    Sketcher.Constraint("Vertical", 0),
    Sketcher.Constraint("Horizontal", 2),
    Sketcher.Constraint("Vertical", 4),
    Sketcher.Constraint("Horizontal", 6),
    Sketcher.Constraint("Equal", 1, 3),
    Sketcher.Constraint("Equal", 3, 5),
    Sketcher.Constraint("Equal", 5, 7),
    Sketcher.Constraint("PointOnObject", 1, 2, -1),
    Sketcher.Constraint("PointOnObject", 3, 2, -2),
    Sketcher.Constraint("Radius", 1, Q("0.5 mm")),
    Sketcher.Constraint("DistanceX", 2, 2, 2, 1, Q("154 mm")),
    Sketcher.Constraint("DistanceY", 0, 1, 0, 2, Q("69 mm")),
])
pad7 = doc.addObject("PartDesign::Pad", "Pad006")
body.addObject(pad7)
pad7.Profile = sketch13
pad7.Length = 3
pad7.Reversed = True
doc.recompute()

fillet2 = doc.addObject("PartDesign::Fillet", "Fillet001")
body.addObject(fillet2)
fillet2.Base = (pad7, edges_at(pad7, [
    (154.854, -3, -0.146),
    (77.5, -3, 0),
    (0.146, -3, -0.146),
    (0, -3, -35),
    (0.146, -3, -69.854),
    (77.5, -3, -70),
    (154.854, -3, -69.854),
    (155, -3, -35),
]))
fillet2.Radius = 0.5
doc.recompute()

fillet3 = doc.addObject("PartDesign::Fillet", "Fillet002")
body.addObject(fillet3)
fillet3.Base = (fillet2, edges_at(fillet2, [
    (147.012, 0, -55.913),
    (120.4, 0, -66),
    (120.4, 0, -45.825),
    (53.688, 0, -35.475),
    (63.212, 0, -15.95),
    (25.113, 0, -5.925),
    (44.163, 0, -30.462),
    (6.062, 0, -34.75),
    (25.113, 0, -63.575),
    (48.925, 0, -55),
    (93.787, 0, -55.913),
    (72.737, 0, -24.475),
    (77.744, 0, -33),
    (82.75, 0, -51.75),
    (71.75, 0, -68.25),
    (57.956, 0, -66),
    (44.163, 0, -64.787),
    (110.838, 0, -25.475),
    (101.312, 0, -35),
    (91.787, 0, -25.475),
    (101.312, 0, -15.95),
    (148.938, 0, -25.475),
    (139.412, 0, -35),
    (129.887, 0, -25.475),
    (139.412, 0, -15.95),
    (72.884, 0, -32.854),
    (71.604, 0, -66.146),
    (44.016, 0, -63.721),
    (53.541, 0, -54.854),
    (44.309, 0, -54.854),
    (146.866, 0, -65.854),
    (146.866, 0, -45.971),
    (53.834, 0, -16.096),
    (44.016, 0, -6.071),
    (6.209, 0, -6.071),
    (6.209, 0, -63.429),
    (44.309, 0, -65.854),
    (72.591, 0, -16.096),
    (82.604, 0, -33.146),
    (93.934, 0, -65.854),
    (93.934, 0, -45.971),
    (91.934, 0, -16.096),
    (91.934, 0, -34.854),
    (110.691, 0, -16.096),
    (110.691, 0, -34.854),
    (130.034, 0, -16.096),
    (130.034, 0, -34.854),
    (148.791, 0, -34.854),
    (148.791, 0, -16.096),
]))
fillet3.Radius = 0.5

doc.recompute()
